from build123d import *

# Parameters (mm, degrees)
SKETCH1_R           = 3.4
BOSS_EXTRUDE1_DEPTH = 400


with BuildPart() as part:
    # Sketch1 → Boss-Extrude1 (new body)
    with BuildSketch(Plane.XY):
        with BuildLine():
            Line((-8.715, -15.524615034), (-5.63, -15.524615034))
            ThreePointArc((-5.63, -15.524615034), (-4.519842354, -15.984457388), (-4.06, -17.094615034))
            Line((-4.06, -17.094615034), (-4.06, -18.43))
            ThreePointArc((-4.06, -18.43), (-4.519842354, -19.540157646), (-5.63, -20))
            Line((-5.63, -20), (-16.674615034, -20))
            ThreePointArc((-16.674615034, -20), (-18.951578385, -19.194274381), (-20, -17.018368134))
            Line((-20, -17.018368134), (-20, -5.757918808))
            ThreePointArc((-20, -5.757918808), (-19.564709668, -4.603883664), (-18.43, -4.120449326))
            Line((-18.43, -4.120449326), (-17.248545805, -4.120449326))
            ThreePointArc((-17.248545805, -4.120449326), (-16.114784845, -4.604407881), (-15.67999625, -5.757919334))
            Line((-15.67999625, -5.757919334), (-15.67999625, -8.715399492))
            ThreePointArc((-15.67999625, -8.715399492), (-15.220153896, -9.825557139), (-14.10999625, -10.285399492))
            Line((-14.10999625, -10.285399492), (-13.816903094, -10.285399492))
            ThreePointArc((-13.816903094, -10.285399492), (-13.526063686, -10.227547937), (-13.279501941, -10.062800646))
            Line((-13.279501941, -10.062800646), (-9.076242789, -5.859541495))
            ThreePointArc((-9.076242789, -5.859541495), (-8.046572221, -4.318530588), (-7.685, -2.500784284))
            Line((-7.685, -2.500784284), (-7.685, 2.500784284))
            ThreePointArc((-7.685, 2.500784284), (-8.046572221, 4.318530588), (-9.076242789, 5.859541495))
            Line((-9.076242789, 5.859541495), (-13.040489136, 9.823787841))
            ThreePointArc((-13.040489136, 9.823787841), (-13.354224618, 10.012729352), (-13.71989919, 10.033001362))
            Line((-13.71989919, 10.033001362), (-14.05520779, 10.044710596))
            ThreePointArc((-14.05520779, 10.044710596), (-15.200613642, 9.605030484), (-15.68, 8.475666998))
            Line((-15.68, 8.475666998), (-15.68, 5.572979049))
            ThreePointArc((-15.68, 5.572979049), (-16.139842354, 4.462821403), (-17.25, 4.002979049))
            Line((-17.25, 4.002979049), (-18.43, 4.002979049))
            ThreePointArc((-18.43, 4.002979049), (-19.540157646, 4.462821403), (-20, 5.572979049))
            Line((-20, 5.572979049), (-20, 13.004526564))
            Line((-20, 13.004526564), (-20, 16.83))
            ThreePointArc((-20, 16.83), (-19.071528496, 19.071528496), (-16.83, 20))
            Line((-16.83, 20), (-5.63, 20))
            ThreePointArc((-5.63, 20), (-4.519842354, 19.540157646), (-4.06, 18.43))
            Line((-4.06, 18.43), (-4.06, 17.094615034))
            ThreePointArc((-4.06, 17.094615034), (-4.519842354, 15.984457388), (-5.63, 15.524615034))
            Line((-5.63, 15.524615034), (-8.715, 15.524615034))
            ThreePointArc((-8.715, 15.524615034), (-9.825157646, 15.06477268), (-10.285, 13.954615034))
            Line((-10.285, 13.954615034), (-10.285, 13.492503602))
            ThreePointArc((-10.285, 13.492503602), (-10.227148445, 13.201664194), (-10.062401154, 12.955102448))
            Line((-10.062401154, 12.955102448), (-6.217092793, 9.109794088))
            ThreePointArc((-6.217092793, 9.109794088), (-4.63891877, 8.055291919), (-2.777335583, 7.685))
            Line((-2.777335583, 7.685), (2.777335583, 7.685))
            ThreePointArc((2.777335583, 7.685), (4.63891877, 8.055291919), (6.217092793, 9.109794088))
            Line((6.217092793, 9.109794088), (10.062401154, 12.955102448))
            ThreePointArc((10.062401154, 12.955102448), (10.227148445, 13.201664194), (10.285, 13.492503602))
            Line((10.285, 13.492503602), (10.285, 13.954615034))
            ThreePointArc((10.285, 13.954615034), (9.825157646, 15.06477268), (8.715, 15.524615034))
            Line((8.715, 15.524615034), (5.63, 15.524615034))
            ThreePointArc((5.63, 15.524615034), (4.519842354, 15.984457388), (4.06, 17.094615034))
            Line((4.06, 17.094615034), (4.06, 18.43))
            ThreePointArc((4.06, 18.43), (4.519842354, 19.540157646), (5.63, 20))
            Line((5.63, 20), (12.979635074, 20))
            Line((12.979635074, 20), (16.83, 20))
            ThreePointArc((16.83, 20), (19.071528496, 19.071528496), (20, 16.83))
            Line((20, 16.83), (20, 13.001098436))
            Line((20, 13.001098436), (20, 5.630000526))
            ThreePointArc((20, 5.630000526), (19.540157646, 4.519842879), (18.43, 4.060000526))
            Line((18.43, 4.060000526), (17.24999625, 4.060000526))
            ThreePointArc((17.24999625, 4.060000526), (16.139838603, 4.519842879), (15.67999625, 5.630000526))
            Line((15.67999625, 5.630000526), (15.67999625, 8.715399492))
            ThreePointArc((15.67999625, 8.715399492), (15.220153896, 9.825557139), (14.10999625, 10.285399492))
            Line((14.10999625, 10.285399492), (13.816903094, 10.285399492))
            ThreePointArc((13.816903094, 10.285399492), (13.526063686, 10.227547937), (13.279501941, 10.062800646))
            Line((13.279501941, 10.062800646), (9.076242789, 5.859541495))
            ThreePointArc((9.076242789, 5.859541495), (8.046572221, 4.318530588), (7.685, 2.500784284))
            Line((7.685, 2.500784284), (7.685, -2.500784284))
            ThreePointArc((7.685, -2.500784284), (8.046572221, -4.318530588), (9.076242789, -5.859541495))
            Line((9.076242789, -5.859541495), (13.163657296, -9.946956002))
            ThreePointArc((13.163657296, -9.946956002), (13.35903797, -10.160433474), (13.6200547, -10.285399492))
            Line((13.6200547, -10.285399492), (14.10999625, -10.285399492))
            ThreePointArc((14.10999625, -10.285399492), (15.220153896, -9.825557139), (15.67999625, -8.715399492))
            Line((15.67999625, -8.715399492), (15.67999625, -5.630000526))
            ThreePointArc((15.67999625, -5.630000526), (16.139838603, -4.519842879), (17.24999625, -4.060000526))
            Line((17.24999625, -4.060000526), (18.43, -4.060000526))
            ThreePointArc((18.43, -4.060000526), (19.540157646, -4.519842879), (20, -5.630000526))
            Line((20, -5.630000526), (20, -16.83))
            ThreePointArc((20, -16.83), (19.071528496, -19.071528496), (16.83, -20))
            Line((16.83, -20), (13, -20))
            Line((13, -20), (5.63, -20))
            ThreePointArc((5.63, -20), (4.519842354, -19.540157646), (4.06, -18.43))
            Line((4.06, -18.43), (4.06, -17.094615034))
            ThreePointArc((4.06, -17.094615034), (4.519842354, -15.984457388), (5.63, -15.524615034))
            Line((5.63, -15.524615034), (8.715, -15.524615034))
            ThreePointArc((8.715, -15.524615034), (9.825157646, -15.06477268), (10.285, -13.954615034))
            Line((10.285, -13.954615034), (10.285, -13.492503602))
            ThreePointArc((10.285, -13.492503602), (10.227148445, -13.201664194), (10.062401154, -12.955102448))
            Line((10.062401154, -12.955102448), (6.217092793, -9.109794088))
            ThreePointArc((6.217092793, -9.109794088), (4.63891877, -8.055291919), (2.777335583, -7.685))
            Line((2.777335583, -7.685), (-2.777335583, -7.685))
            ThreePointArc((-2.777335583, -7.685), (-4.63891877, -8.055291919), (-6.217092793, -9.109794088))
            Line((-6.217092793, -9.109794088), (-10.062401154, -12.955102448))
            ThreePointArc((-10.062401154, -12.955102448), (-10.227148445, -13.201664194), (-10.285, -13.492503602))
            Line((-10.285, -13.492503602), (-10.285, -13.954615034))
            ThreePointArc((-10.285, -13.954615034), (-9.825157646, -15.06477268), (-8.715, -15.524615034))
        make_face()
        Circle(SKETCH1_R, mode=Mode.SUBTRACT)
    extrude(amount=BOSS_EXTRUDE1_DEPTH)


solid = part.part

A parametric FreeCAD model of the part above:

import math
import FreeCAD as App
import Part
import Sketcher
Q = App.Units.Quantity

doc = App.newDocument("Part")
body = doc.addObject("PartDesign::Body", "Body")

sketch1 = doc.addObject("Sketcher::SketchObject", "Sketch")
body.addObject(sketch1)
sketch1.AttachmentSupport = (doc.XY_Plane, [""])
sketch1.MapMode = "FlatFace"
sketch1.addGeometry([
    Part.LineSegment(App.Vector(-5.63, -15.52, 0), App.Vector(-8.71, -15.52, 0)),
    Part.ArcOfCircle(Part.Circle(App.Vector(-8.71, -13.95, 0), App.Vector(0, 0, 1), 1.57), math.radians(-180), math.radians(-90)),
    Part.LineSegment(App.Vector(-10.29, -13.95, 0), App.Vector(-10.29, -13.49, 0)),
    Part.ArcOfCircle(Part.Circle(App.Vector(-9.52, -13.49, 0), App.Vector(0, 0, 1), 0.76), math.radians(135), math.radians(180)),
    Part.LineSegment(App.Vector(-10.06, -12.96, 0), App.Vector(-6.22, -9.11, 0)),
    Part.ArcOfCircle(Part.Circle(App.Vector(-2.78, -12.55, 0), App.Vector(0, 0, 1), 4.86), math.radians(90), math.radians(135)),
    Part.LineSegment(App.Vector(-2.78, -7.68, 0), App.Vector(2.78, -7.68, 0)),
    Part.ArcOfCircle(Part.Circle(App.Vector(2.78, -12.55, 0), App.Vector(0, 0, 1), 4.86), math.radians(45), math.radians(90)),
    Part.LineSegment(App.Vector(6.22, -9.11, 0), App.Vector(10.06, -12.96, 0)),
    Part.ArcOfCircle(Part.Circle(App.Vector(9.52, -13.49, 0), App.Vector(0, 0, 1), 0.76), math.radians(0), math.radians(45)),
    Part.LineSegment(App.Vector(10.29, -13.49, 0), App.Vector(10.29, -13.95, 0)),
    Part.ArcOfCircle(Part.Circle(App.Vector(8.71, -13.95, 0), App.Vector(0, 0, 1), 1.57), math.radians(-90), math.radians(0)),
    Part.LineSegment(App.Vector(8.71, -15.52, 0), App.Vector(5.63, -15.52, 0)),
    Part.ArcOfCircle(Part.Circle(App.Vector(5.63, -17.09, 0), App.Vector(0, 0, 1), 1.57), math.radians(90), math.radians(180)),
    Part.LineSegment(App.Vector(4.06, -17.09, 0), App.Vector(4.06, -18.43, 0)),
    Part.ArcOfCircle(Part.Circle(App.Vector(5.63, -18.43, 0), App.Vector(0, 0, 1), 1.57), math.radians(-180), math.radians(-90)),
    Part.LineSegment(App.Vector(5.63, -20, 0), App.Vector(16.83, -20, 0)),
    Part.ArcOfCircle(Part.Circle(App.Vector(16.83, -16.83, 0), App.Vector(0, 0, 1), 3.17), math.radians(-90), math.radians(0)),
    Part.LineSegment(App.Vector(20, -16.83, 0), App.Vector(20, -5.63, 0)),
    Part.ArcOfCircle(Part.Circle(App.Vector(18.43, -5.63, 0), App.Vector(0, 0, 1), 1.57), math.radians(0), math.radians(90)),
    Part.LineSegment(App.Vector(18.43, -4.06, 0), App.Vector(17.25, -4.06, 0)),
    Part.ArcOfCircle(Part.Circle(App.Vector(17.25, -5.63, 0), App.Vector(0, 0, 1), 1.57), math.radians(90), math.radians(180)),
    Part.LineSegment(App.Vector(15.68, -5.63, 0), App.Vector(15.68, -8.72, 0)),
    Part.ArcOfCircle(Part.Circle(App.Vector(14.11, -8.72, 0), App.Vector(0, 0, 1), 1.57), math.radians(-90), math.radians(0)),
    Part.LineSegment(App.Vector(14.11, -10.29, 0), App.Vector(13.62, -10.29, 0)),
    Part.ArcOfCircle(Part.Circle(App.Vector(13.81, -9.55, 0), App.Vector(0, 0, 1), 0.76), math.radians(-149), math.radians(-105)),
    Part.LineSegment(App.Vector(13.16, -9.95, 0), App.Vector(9.08, -5.86, 0)),
    Part.ArcOfCircle(Part.Circle(App.Vector(12.44, -2.5, 0), App.Vector(0, 0, 1), 4.75), math.radians(-180), math.radians(-135)),
    Part.LineSegment(App.Vector(7.68, -2.5, 0), App.Vector(7.68, 2.5, 0)),
    Part.ArcOfCircle(Part.Circle(App.Vector(12.44, 2.5, 0), App.Vector(0, 0, 1), 4.75), math.radians(135), math.radians(180)),
    Part.LineSegment(App.Vector(9.08, 5.86, 0), App.Vector(13.28, 10.06, 0)),
    Part.ArcOfCircle(Part.Circle(App.Vector(13.82, 9.53, 0), App.Vector(0, 0, 1), 0.76), math.radians(90), math.radians(135)),
    Part.LineSegment(App.Vector(13.82, 10.29, 0), App.Vector(14.11, 10.29, 0)),
    Part.ArcOfCircle(Part.Circle(App.Vector(14.11, 8.72, 0), App.Vector(0, 0, 1), 1.57), math.radians(0), math.radians(90)),
    Part.LineSegment(App.Vector(15.68, 8.72, 0), App.Vector(15.68, 5.63, 0)),
    Part.ArcOfCircle(Part.Circle(App.Vector(17.25, 5.63, 0), App.Vector(0, 0, 1), 1.57), math.radians(180), math.radians(270)),
    Part.LineSegment(App.Vector(17.25, 4.06, 0), App.Vector(18.43, 4.06, 0)),
    Part.ArcOfCircle(Part.Circle(App.Vector(18.43, 5.63, 0), App.Vector(0, 0, 1), 1.57), math.radians(-90), math.radians(0)),
    Part.LineSegment(App.Vector(20, 5.63, 0), App.Vector(20, 16.83, 0)),
    Part.ArcOfCircle(Part.Circle(App.Vector(16.83, 16.83, 0), App.Vector(0, 0, 1), 3.17), math.radians(0), math.radians(90)),
    Part.LineSegment(App.Vector(16.83, 20, 0), App.Vector(5.63, 20, 0)),
    Part.ArcOfCircle(Part.Circle(App.Vector(5.63, 18.43, 0), App.Vector(0, 0, 1), 1.57), math.radians(90), math.radians(180)),
    Part.LineSegment(App.Vector(4.06, 18.43, 0), App.Vector(4.06, 17.09, 0)),
    Part.ArcOfCircle(Part.Circle(App.Vector(5.63, 17.09, 0), App.Vector(0, 0, 1), 1.57), math.radians(-180), math.radians(-90)),
    Part.LineSegment(App.Vector(5.63, 15.52, 0), App.Vector(8.71, 15.52, 0)),
    Part.ArcOfCircle(Part.Circle(App.Vector(8.71, 13.95, 0), App.Vector(0, 0, 1), 1.57), math.radians(0), math.radians(90)),
    Part.LineSegment(App.Vector(10.29, 13.95, 0), App.Vector(10.29, 13.49, 0)),
    Part.ArcOfCircle(Part.Circle(App.Vector(9.52, 13.49, 0), App.Vector(0, 0, 1), 0.76), math.radians(-45), math.radians(0)),
    Part.LineSegment(App.Vector(10.06, 12.96, 0), App.Vector(6.22, 9.11, 0)),
    Part.ArcOfCircle(Part.Circle(App.Vector(2.78, 12.55, 0), App.Vector(0, 0, 1), 4.86), math.radians(-90), math.radians(-45)),
    Part.LineSegment(App.Vector(2.78, 7.68, 0), App.Vector(-2.78, 7.68, 0)),
    Part.ArcOfCircle(Part.Circle(App.Vector(-2.78, 12.55, 0), App.Vector(0, 0, 1), 4.86), math.radians(-135), math.radians(-90)),
    Part.LineSegment(App.Vector(-6.22, 9.11, 0), App.Vector(-10.06, 12.96, 0)),
    Part.ArcOfCircle(Part.Circle(App.Vector(-9.52, 13.49, 0), App.Vector(0, 0, 1), 0.76), math.radians(180), math.radians(225)),
    Part.LineSegment(App.Vector(-10.29, 13.49, 0), App.Vector(-10.29, 13.95, 0)),
    Part.ArcOfCircle(Part.Circle(App.Vector(-8.71, 13.95, 0), App.Vector(0, 0, 1), 1.57), math.radians(90), math.radians(180)),
    Part.LineSegment(App.Vector(-8.71, 15.52, 0), App.Vector(-5.63, 15.52, 0)),
    Part.ArcOfCircle(Part.Circle(App.Vector(-5.63, 17.09, 0), App.Vector(0, 0, 1), 1.57), math.radians(-90), math.radians(0)),
    Part.LineSegment(App.Vector(-4.06, 17.09, 0), App.Vector(-4.06, 18.43, 0)),
    Part.ArcOfCircle(Part.Circle(App.Vector(-5.63, 18.43, 0), App.Vector(0, 0, 1), 1.57), math.radians(0), math.radians(90)),
    Part.LineSegment(App.Vector(-5.63, 20, 0), App.Vector(-16.83, 20, 0)),
    Part.ArcOfCircle(Part.Circle(App.Vector(-16.83, 16.83, 0), App.Vector(0, 0, 1), 3.17), math.radians(90), math.radians(180)),
    Part.LineSegment(App.Vector(-20, 16.83, 0), App.Vector(-20, 5.57, 0)),
    Part.ArcOfCircle(Part.Circle(App.Vector(-18.43, 5.57, 0), App.Vector(0, 0, 1), 1.57), math.radians(-180), math.radians(-90)),
    Part.LineSegment(App.Vector(-18.43, 4, 0), App.Vector(-17.25, 4, 0)),
    Part.ArcOfCircle(Part.Circle(App.Vector(-17.25, 5.57, 0), App.Vector(0, 0, 1), 1.57), math.radians(-90), math.radians(0)),
    Part.LineSegment(App.Vector(-15.68, 5.57, 0), App.Vector(-15.68, 8.48, 0)),
    Part.ArcOfCircle(Part.Circle(App.Vector(-14.11, 8.48, 0), App.Vector(0, 0, 1), 1.57), math.radians(88), math.radians(180)),
    Part.LineSegment(App.Vector(-14.06, 10.04, 0), App.Vector(-13.72, 10.03, 0)),
    Part.ArcOfCircle(Part.Circle(App.Vector(-13.58, 9.29, 0), App.Vector(0, 0, 1), 0.76), math.radians(45), math.radians(101)),
    Part.LineSegment(App.Vector(-13.04, 9.82, 0), App.Vector(-9.08, 5.86, 0)),
    Part.ArcOfCircle(Part.Circle(App.Vector(-12.44, 2.5, 0), App.Vector(0, 0, 1), 4.75), math.radians(0), math.radians(45)),
    Part.LineSegment(App.Vector(-7.68, 2.5, 0), App.Vector(-7.68, -2.5, 0)),
    Part.ArcOfCircle(Part.Circle(App.Vector(-12.44, -2.5, 0), App.Vector(0, 0, 1), 4.75), math.radians(-45), math.radians(0)),
    Part.LineSegment(App.Vector(-9.08, -5.86, 0), App.Vector(-13.28, -10.06, 0)),
    Part.ArcOfCircle(Part.Circle(App.Vector(-13.82, -9.53, 0), App.Vector(0, 0, 1), 0.76), math.radians(-90), math.radians(-45)),
    Part.LineSegment(App.Vector(-13.82, -10.29, 0), App.Vector(-14.11, -10.29, 0)),
    Part.ArcOfCircle(Part.Circle(App.Vector(-14.11, -8.72, 0), App.Vector(0, 0, 1), 1.57), math.radians(180), math.radians(270)),
    Part.LineSegment(App.Vector(-15.68, -8.72, 0), App.Vector(-15.68, -5.76, 0)),
    Part.ArcOfCircle(Part.Circle(App.Vector(-17.25, -5.69, 0), App.Vector(0, 0, 1), 1.57), math.radians(-2), math.radians(90)),
    Part.LineSegment(App.Vector(-17.25, -4.12, 0), App.Vector(-18.43, -4.12, 0)),
    Part.ArcOfCircle(Part.Circle(App.Vector(-18.43, -5.69, 0), App.Vector(0, 0, 1), 1.57), math.radians(90), math.radians(182)),
    Part.LineSegment(App.Vector(-20, -5.76, 0), App.Vector(-20, -17.02, 0)),
    Part.ArcOfCircle(Part.Circle(App.Vector(-16.84, -16.83, 0), App.Vector(0, 0, 1), 3.17), math.radians(-177), math.radians(-87)),
    Part.LineSegment(App.Vector(-16.67, -20, 0), App.Vector(-5.63, -20, 0)),
    Part.ArcOfCircle(Part.Circle(App.Vector(-5.63, -18.43, 0), App.Vector(0, 0, 1), 1.57), math.radians(-90), math.radians(0)),
    Part.LineSegment(App.Vector(-4.06, -18.43, 0), App.Vector(-4.06, -17.09, 0)),
    Part.ArcOfCircle(Part.Circle(App.Vector(-5.63, -17.09, 0), App.Vector(0, 0, 1), 1.57), math.radians(0), math.radians(90)),
    Part.Circle(App.Vector(0, 0, 0), App.Vector(0, 0, 1), 3.4),
], False)
sketch1.addConstraint([
    Sketcher.Constraint("Tangent", 0, 2, 1, 2),
    Sketcher.Constraint("Tangent", 1, 1, 2, 1),
    Sketcher.Constraint("Tangent", 2, 2, 3, 2),
    Sketcher.Constraint("Tangent", 3, 1, 4, 1),
    Sketcher.Constraint("Tangent", 4, 2, 5, 2),
    Sketcher.Constraint("Tangent", 5, 1, 6, 1),
    Sketcher.Constraint("Tangent", 6, 2, 7, 2),
    Sketcher.Constraint("Tangent", 7, 1, 8, 1),
    Sketcher.Constraint("Tangent", 8, 2, 9, 2),
    Sketcher.Constraint("Tangent", 9, 1, 10, 1),
    Sketcher.Constraint("Tangent", 10, 2, 11, 2),
    Sketcher.Constraint("Tangent", 11, 1, 12, 1),
    Sketcher.Constraint("Tangent", 12, 2, 13, 1),
    Sketcher.Constraint("Tangent", 13, 2, 14, 1),
    Sketcher.Constraint("Tangent", 14, 2, 15, 1),
    Sketcher.Constraint("Tangent", 15, 2, 16, 1),
    Sketcher.Constraint("Tangent", 16, 2, 17, 1),
    Sketcher.Constraint("Tangent", 17, 2, 18, 1),
    Sketcher.Constraint("Tangent", 18, 2, 19, 1),
    Sketcher.Constraint("Tangent", 19, 2, 20, 1),
    Sketcher.Constraint("Tangent", 20, 2, 21, 1),
    Sketcher.Constraint("Tangent", 21, 2, 22, 1),
    Sketcher.Constraint("Tangent", 22, 2, 23, 2),
    Sketcher.Constraint("Tangent", 23, 1, 24, 1),
    Sketcher.Constraint("Coincident", 24, 2, 25, 2),
    Sketcher.Constraint("Coincident", 25, 1, 26, 1),
    Sketcher.Constraint("Tangent", 26, 2, 27, 2),
    Sketcher.Constraint("Tangent", 27, 1, 28, 1),
    Sketcher.Constraint("Tangent", 28, 2, 29, 2),
    Sketcher.Constraint("Tangent", 29, 1, 30, 1),
    Sketcher.Constraint("Tangent", 30, 2, 31, 2),
    Sketcher.Constraint("Tangent", 31, 1, 32, 1),
    Sketcher.Constraint("Tangent", 32, 2, 33, 2),
    Sketcher.Constraint("Tangent", 33, 1, 34, 1),
    Sketcher.Constraint("Tangent", 34, 2, 35, 1),
    Sketcher.Constraint("Tangent", 35, 2, 36, 1),
    Sketcher.Constraint("Tangent", 36, 2, 37, 1),
    Sketcher.Constraint("Tangent", 37, 2, 38, 1),
    Sketcher.Constraint("Tangent", 38, 2, 39, 1),
    Sketcher.Constraint("Tangent", 39, 2, 40, 1),
    Sketcher.Constraint("Tangent", 40, 2, 41, 1),
    Sketcher.Constraint("Tangent", 41, 2, 42, 1),
    Sketcher.Constraint("Tangent", 42, 2, 43, 1),
    Sketcher.Constraint("Tangent", 43, 2, 44, 1),
    Sketcher.Constraint("Tangent", 44, 2, 45, 2),
    Sketcher.Constraint("Tangent", 45, 1, 46, 1),
    Sketcher.Constraint("Tangent", 46, 2, 47, 2),
    Sketcher.Constraint("Tangent", 47, 1, 48, 1),
    Sketcher.Constraint("Tangent", 48, 2, 49, 2),
    Sketcher.Constraint("Tangent", 49, 1, 50, 1),
    Sketcher.Constraint("Tangent", 50, 2, 51, 2),
    Sketcher.Constraint("Tangent", 51, 1, 52, 1),
    Sketcher.Constraint("Tangent", 52, 2, 53, 2),
    Sketcher.Constraint("Tangent", 53, 1, 54, 1),
    Sketcher.Constraint("Tangent", 54, 2, 55, 2),
    Sketcher.Constraint("Tangent", 55, 1, 56, 1),
    Sketcher.Constraint("Tangent", 56, 2, 57, 1),
    Sketcher.Constraint("Tangent", 57, 2, 58, 1),
    Sketcher.Constraint("Tangent", 58, 2, 59, 1),
    Sketcher.Constraint("Tangent", 59, 2, 60, 1),
    Sketcher.Constraint("Tangent", 60, 2, 61, 1),
    Sketcher.Constraint("Tangent", 61, 2, 62, 1),
    Sketcher.Constraint("Tangent", 62, 2, 63, 1),
    Sketcher.Constraint("Tangent", 63, 2, 64, 1),
    Sketcher.Constraint("Tangent", 64, 2, 65, 1),
    Sketcher.Constraint("Tangent", 65, 2, 66, 1),
    Sketcher.Constraint("Tangent", 66, 2, 67, 2),
    Sketcher.Constraint("Tangent", 67, 1, 68, 1),
    Sketcher.Constraint("Coincident", 68, 2, 69, 2),
    Sketcher.Constraint("Tangent", 69, 1, 70, 1),
    Sketcher.Constraint("Tangent", 70, 2, 71, 2),
    Sketcher.Constraint("Tangent", 71, 1, 72, 1),
    Sketcher.Constraint("Tangent", 72, 2, 73, 2),
    Sketcher.Constraint("Tangent", 73, 1, 74, 1),
    Sketcher.Constraint("Tangent", 74, 2, 75, 2),
    Sketcher.Constraint("Tangent", 75, 1, 76, 1),
    Sketcher.Constraint("Tangent", 76, 2, 77, 2),
    Sketcher.Constraint("Tangent", 77, 1, 78, 1),
    Sketcher.Constraint("Coincident", 78, 2, 79, 1),
    Sketcher.Constraint("Tangent", 79, 2, 80, 1),
    Sketcher.Constraint("Coincident", 80, 2, 81, 1),
    Sketcher.Constraint("Coincident", 81, 2, 82, 1),
    Sketcher.Constraint("Coincident", 82, 2, 83, 1),
    Sketcher.Constraint("Coincident", 83, 2, 84, 1),
    Sketcher.Constraint("Tangent", 84, 2, 85, 1),
    Sketcher.Constraint("Tangent", 85, 2, 86, 1),
    Sketcher.Constraint("Tangent", 86, 2, 87, 1),
    Sketcher.Constraint("Tangent", 87, 2, 0, 1),
    Sketcher.Constraint("Horizontal", 0),
    Sketcher.Constraint("Vertical", 2),
    Sketcher.Constraint("Horizontal", 6),
    Sketcher.Constraint("Vertical", 10),
    Sketcher.Constraint("Horizontal", 12),
    Sketcher.Constraint("Vertical", 14),
    Sketcher.Constraint("Horizontal", 16),
    Sketcher.Constraint("Vertical", 18),
    Sketcher.Constraint("Horizontal", 20),
    Sketcher.Constraint("Vertical", 22),
    Sketcher.Constraint("Horizontal", 24),
    Sketcher.Constraint("Vertical", 28),
    Sketcher.Constraint("Horizontal", 32),
    Sketcher.Constraint("Vertical", 34),
    Sketcher.Constraint("Horizontal", 36),
    Sketcher.Constraint("Vertical", 38),
    Sketcher.Constraint("Horizontal", 40),
    Sketcher.Constraint("Vertical", 42),
    Sketcher.Constraint("Horizontal", 44),
    Sketcher.Constraint("Vertical", 46),
    Sketcher.Constraint("Horizontal", 50),
    Sketcher.Constraint("Vertical", 54),
    Sketcher.Constraint("Horizontal", 56),
    Sketcher.Constraint("Vertical", 58),
    Sketcher.Constraint("Horizontal", 60),
    Sketcher.Constraint("Vertical", 62),
    Sketcher.Constraint("Horizontal", 64),
    Sketcher.Constraint("Vertical", 66),
    Sketcher.Constraint("Vertical", 72),
    Sketcher.Constraint("Horizontal", 76),
    Sketcher.Constraint("Vertical", 78),
    Sketcher.Constraint("Horizontal", 80),
    Sketcher.Constraint("Vertical", 82),
    Sketcher.Constraint("Horizontal", 84),
    Sketcher.Constraint("Vertical", 86),
    Sketcher.Constraint("Coincident", 88, 3, -1, 1),
    Sketcher.Constraint("Equal", 5, 7),
    Sketcher.Constraint("Equal", 3, 9),
    Sketcher.Constraint("Equal", 1, 11),
    Sketcher.Constraint("Equal", 11, 13),
    Sketcher.Constraint("Equal", 13, 15),
    Sketcher.Constraint("Equal", 15, 19),
    Sketcher.Constraint("Equal", 19, 21),
    Sketcher.Constraint("Equal", 21, 23),
    Sketcher.Constraint("Equal", 9, 25),
    Sketcher.Constraint("Equal", 27, 29),
    Sketcher.Constraint("Equal", 25, 31),
    Sketcher.Constraint("Equal", 23, 33),
    Sketcher.Constraint("Equal", 33, 35),
    Sketcher.Constraint("Equal", 35, 37),
    Sketcher.Constraint("Equal", 17, 39),
    Sketcher.Constraint("Equal", 37, 41),
    Sketcher.Constraint("Equal", 41, 43),
    Sketcher.Constraint("Equal", 43, 45),
    Sketcher.Constraint("Equal", 31, 47),
    Sketcher.Constraint("Equal", 7, 49),
    Sketcher.Constraint("Equal", 49, 51),
    Sketcher.Constraint("Equal", 47, 53),
    Sketcher.Constraint("Equal", 45, 55),
    Sketcher.Constraint("Equal", 55, 57),
    Sketcher.Constraint("Equal", 57, 59),
    Sketcher.Constraint("Equal", 39, 61),
    Sketcher.Constraint("Equal", 59, 63),
    Sketcher.Constraint("Equal", 63, 65),
    Sketcher.Constraint("Equal", 65, 67),
    Sketcher.Constraint("Equal", 53, 69),
    Sketcher.Constraint("Equal", 29, 71),
    Sketcher.Constraint("Equal", 71, 73),
    Sketcher.Constraint("Equal", 69, 75),
    Sketcher.Constraint("Equal", 67, 77),
    Sketcher.Constraint("Equal", 77, 79),
    Sketcher.Constraint("Equal", 79, 81),
    Sketcher.Constraint("Equal", 61, 83),
    Sketcher.Constraint("Equal", 81, 85),
    Sketcher.Constraint("Equal", 85, 87),
    Sketcher.Constraint("Symmetric", 1, 3, 45, 3, -1, 1),
    Sketcher.Constraint("Symmetric", 5, 3, 49, 3, -1, 1),
    Sketcher.Constraint("Symmetric", 9, 3, 53, 3, -1, 1),
    Sketcher.Constraint("Symmetric", 13, 3, 57, 3, -1, 1),
    Sketcher.Constraint("Symmetric", 17, 3, 61, 3, -1, 1),
    Sketcher.Constraint("Symmetric", 27, 3, 71, 3, -1, 1),
    Sketcher.Constraint("Symmetric", 31, 3, 75, 3, -1, 1),
    Sketcher.Constraint("Symmetric", 41, 3, 85, 3, -1, 1),
    Sketcher.Constraint("Symmetric", 3, 3, 9, 3, -2),
    Sketcher.Constraint("Symmetric", 43, 3, 57, 3, -2),
    Sketcher.Constraint("Symmetric", 39, 3, 61, 3, -2),
    Sketcher.Constraint("Symmetric", 23, 3, 77, 3, -2),
    Sketcher.Constraint("Symmetric", 48, 2, 51, 1, -2),
    Sketcher.Constraint("Symmetric", 29, 1, 70, 2, -2),
    Sketcher.Constraint("Symmetric", 26, 2, 73, 1, -2),
    Sketcher.Constraint("Symmetric", 21, 3, 35, 3, -1),
    Sketcher.Constraint("Perpendicular", 4, 8),
    Sketcher.Constraint("Parallel", 8, 26),
    Sketcher.Constraint("Perpendicular", 26, 30),
    Sketcher.Constraint("Horizontal", 78, 2, 81, 2),
    Sketcher.Constraint("Vertical", 63, 2, 80, 2),
    Sketcher.Constraint("Vertical", 62, 2, 81, 2),
    Sketcher.Constraint("Equal", 60, 18),
    Sketcher.Constraint("Diameter", 88, Q("6.8 mm")),
    Sketcher.Constraint("Angle", 68, Q("-2 deg")),
    Sketcher.Constraint("Radius", 1, Q("1.57 mm")),
    Sketcher.Constraint("Radius", 3, Q("0.76 mm")),
    Sketcher.Constraint("Radius", 17, Q("3.17 mm")),
    Sketcher.Constraint("Radius", 27, Q("4.75 mm")),
    Sketcher.Constraint("DistanceX", 16, 1, 16, 2, Q("11.2 mm")),
    Sketcher.Constraint("DistanceY", 15, 2, -1, 1, Q("20 mm")),
    Sketcher.Constraint("DistanceX", -1, 1, 17, 2, Q("20 mm")),
    Sketcher.Constraint("DistanceX", 64, 1, 64, 2, Q("1.18 mm")),
    Sketcher.Constraint("DistanceX", 0, 2, 0, 1, Q("3.085 mm")),
    Sketcher.Constraint("Radius", 5, Q("4.864551 mm")),
    Sketcher.Constraint("DistanceY", 22, 2, 22, 1, Q("3.085399 mm")),
    Sketcher.Constraint("DistanceX", -1, 1, 27, 3, Q("12.435 mm")),
    Sketcher.Constraint("DistanceY", 5, 1, -1, 1, Q("7.685 mm")),
    Sketcher.Constraint("DistanceY", -1, 1, 68, 2, Q("10.033001 mm")),
    Sketcher.Constraint("DistanceX", 6, 1, 6, 2, Q("5.554671 mm")),
    Sketcher.Constraint("DistanceX", 24, 2, 24, 1, Q("0.489942 mm")),
    Sketcher.Constraint("DistanceY", 2, 1, 2, 2, Q("0.462111 mm")),
    Sketcher.Constraint("DistanceY", 28, 1, 28, 2, Q("5.001569 mm")),
    Sketcher.Constraint("DistanceY", 62, 2, 62, 1, Q("11.257021 mm")),
    Sketcher.Constraint("DistanceY", 78, 1, 78, 2, Q("2.95748 mm")),
    Sketcher.Constraint("DistanceY", 82, 2, 82, 1, Q("11.260449 mm")),
    Sketcher.Constraint("DistanceX", 68, 2, -1, 1, Q("13.719899 mm")),
    Sketcher.Constraint("DistanceX", 20, 2, 20, 1, Q("1.180004 mm")),
    Sketcher.Constraint("DistanceX", 80, 2, 80, 1, Q("1.181454 mm")),
    Sketcher.Constraint("DistanceX", 84, 1, 84, 2, Q("11.044615 mm")),
    Sketcher.Constraint("DistanceX", -1, 1, 25, 3, Q("13.811732 mm")),
])
pad1 = doc.addObject("PartDesign::Pad", "Pad")
body.addObject(pad1)
pad1.Profile = sketch1
pad1.Length = 400

doc.recompute()
